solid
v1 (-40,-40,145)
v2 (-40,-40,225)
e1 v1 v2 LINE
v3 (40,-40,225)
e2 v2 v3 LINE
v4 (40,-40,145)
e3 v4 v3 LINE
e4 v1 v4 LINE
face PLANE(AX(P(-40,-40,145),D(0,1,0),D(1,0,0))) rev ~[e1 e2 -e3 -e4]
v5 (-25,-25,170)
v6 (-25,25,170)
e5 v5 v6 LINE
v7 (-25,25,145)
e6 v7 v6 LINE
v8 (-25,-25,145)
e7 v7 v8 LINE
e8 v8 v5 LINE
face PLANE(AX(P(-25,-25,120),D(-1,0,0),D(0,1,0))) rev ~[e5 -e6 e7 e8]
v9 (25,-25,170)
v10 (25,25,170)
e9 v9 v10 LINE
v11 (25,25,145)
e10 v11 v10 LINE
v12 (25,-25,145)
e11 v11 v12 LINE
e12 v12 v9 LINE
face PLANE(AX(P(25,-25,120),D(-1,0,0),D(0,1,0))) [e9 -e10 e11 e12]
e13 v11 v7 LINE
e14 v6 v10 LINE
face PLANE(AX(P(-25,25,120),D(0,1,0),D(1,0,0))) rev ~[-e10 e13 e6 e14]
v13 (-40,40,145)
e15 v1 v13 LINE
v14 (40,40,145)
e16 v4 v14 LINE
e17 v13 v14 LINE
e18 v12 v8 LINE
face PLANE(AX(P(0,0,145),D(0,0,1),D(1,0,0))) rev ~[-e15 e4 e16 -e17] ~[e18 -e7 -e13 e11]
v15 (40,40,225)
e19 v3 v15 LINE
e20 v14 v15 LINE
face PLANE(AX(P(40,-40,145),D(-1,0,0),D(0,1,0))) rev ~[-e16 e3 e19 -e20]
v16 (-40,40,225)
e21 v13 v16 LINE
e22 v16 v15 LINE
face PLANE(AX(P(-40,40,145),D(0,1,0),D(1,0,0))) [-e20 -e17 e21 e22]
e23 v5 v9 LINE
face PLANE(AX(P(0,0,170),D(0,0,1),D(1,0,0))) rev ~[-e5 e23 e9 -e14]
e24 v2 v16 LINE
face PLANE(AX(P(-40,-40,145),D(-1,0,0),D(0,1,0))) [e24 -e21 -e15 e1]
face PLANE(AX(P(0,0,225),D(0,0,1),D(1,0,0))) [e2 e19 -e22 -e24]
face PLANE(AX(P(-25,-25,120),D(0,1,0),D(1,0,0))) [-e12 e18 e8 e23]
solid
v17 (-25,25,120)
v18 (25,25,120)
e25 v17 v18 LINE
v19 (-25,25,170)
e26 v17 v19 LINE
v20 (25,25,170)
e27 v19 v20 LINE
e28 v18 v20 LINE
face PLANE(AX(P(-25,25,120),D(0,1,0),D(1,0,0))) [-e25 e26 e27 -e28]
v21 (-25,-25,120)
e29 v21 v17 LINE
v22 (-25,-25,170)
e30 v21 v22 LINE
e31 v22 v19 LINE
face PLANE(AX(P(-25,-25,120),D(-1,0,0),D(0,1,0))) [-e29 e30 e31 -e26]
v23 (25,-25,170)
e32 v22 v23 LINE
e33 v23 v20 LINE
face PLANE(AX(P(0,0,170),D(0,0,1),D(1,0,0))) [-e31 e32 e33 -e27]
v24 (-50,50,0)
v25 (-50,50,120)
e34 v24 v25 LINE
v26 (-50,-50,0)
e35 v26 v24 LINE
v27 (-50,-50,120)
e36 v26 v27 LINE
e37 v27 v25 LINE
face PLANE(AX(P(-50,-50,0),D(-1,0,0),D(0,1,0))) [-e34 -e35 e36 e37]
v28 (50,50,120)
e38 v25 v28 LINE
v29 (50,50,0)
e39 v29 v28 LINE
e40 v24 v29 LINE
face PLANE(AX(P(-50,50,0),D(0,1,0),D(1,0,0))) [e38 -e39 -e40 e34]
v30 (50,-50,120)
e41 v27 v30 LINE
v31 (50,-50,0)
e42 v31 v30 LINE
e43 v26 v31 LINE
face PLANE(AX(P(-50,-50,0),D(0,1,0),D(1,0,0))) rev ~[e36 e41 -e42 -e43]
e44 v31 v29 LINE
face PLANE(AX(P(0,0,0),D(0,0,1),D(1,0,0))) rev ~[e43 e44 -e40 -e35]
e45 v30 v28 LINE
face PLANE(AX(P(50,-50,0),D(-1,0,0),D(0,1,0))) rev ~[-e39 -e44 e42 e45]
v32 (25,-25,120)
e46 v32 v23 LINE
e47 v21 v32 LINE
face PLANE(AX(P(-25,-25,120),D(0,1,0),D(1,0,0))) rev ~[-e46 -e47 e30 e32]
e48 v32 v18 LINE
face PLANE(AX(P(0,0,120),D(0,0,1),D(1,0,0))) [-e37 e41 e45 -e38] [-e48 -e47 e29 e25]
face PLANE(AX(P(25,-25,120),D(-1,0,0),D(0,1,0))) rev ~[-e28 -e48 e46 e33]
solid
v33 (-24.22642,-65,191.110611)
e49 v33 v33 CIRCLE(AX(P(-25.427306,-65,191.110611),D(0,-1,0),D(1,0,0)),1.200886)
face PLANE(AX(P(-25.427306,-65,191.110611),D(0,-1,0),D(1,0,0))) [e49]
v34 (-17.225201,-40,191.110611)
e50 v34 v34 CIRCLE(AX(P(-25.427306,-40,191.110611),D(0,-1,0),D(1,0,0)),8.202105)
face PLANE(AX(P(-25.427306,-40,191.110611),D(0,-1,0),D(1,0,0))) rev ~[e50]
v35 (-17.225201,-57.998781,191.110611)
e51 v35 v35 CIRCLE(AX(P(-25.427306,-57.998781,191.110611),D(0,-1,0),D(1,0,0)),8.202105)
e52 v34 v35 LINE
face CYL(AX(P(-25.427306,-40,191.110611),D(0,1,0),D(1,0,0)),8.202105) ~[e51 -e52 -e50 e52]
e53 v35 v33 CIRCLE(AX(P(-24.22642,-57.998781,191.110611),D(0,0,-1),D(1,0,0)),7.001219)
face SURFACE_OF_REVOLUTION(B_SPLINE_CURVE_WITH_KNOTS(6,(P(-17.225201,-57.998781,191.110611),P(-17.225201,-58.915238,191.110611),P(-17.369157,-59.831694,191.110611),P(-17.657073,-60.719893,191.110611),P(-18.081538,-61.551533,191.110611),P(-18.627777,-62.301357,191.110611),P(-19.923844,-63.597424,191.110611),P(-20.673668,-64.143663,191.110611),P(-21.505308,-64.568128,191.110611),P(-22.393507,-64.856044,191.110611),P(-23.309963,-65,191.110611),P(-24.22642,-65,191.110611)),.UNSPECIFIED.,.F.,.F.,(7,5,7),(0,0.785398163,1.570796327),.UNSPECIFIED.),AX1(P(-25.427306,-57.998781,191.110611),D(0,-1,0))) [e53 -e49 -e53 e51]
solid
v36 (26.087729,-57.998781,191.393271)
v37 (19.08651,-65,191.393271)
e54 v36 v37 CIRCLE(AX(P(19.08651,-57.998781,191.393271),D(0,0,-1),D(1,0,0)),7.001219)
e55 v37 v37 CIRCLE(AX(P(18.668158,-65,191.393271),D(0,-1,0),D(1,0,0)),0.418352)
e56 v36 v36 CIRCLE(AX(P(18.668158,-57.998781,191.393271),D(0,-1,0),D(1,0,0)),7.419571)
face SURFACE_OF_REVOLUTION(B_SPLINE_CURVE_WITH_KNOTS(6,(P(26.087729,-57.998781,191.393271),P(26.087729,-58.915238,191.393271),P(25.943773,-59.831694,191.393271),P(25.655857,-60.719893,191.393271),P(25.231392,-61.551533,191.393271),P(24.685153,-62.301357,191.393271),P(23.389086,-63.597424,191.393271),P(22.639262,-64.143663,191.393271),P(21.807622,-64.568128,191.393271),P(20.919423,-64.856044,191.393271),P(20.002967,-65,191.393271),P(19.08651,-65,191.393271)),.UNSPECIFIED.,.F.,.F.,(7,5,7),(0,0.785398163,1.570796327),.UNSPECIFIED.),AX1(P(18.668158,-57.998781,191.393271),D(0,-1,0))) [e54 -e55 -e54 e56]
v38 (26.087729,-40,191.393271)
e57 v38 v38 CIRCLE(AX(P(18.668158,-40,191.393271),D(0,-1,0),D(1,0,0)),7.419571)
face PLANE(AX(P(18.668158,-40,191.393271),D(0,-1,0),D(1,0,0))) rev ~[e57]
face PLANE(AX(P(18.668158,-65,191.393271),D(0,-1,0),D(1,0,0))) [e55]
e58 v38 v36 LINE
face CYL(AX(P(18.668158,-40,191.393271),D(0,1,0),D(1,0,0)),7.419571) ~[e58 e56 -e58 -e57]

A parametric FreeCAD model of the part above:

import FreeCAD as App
import Part
import Sketcher

V = App.Vector
Q = App.Units.Quantity


def edges_at(feature, points):
    """Names of the edges that pass closest to the given points."""
    edges = feature.Shape.Edges
    near = lambda p: min(range(len(edges)), key=lambda i: edges[i].distToShape(Part.Vertex(*p))[0])
    return sorted({f"Edge{near(p) + 1}" for p in points})

doc = App.newDocument("Part")
params = doc.addObject("Spreadsheet::Sheet", "Params")
for row, (alias, value) in enumerate([
    ("sketch1_width", "100 mm"),
    ("pad1_length", "120 mm"),
    ("sketch2_width", "50 mm"),
    ("pad2_length", "50 mm"),
    ("sketch3_width", "80 mm"),
    ("pad3_length", "80 mm"),
    ("pad4_length", "25 mm"),
    ("fillet_radius", "7.001219 mm"),
], start=1):
    params.set(f"A{row}", alias)
    params.set(f"B{row}", "=" + value)
    params.setAlias(f"B{row}", alias)

body = doc.addObject("PartDesign::Body", "Body")

sketch1 = doc.addObject("Sketcher::SketchObject", "Sketch")
body.addObject(sketch1)
sketch1.AttachmentSupport = (doc.XY_Plane, [""])
sketch1.MapMode = "FlatFace"
sketch1.addGeometry([
    Part.LineSegment(V(-50, 50, 0), V(-50, -50, 0)),
    Part.LineSegment(V(-50, -50, 0), V(50, -50, 0)),
    Part.LineSegment(V(50, -50, 0), V(50, 50, 0)),
    Part.LineSegment(V(50, 50, 0), V(-50, 50, 0)),
], False)
sketch1.addConstraint([
    Sketcher.Constraint("Coincident", 0, 2, 1, 1),
    Sketcher.Constraint("Coincident", 1, 2, 2, 1),
    Sketcher.Constraint("Coincident", 2, 2, 3, 1),
    Sketcher.Constraint("Coincident", 3, 2, 0, 1),
    Sketcher.Constraint("Vertical", 0),
    Sketcher.Constraint("Horizontal", 1),
    Sketcher.Constraint("Vertical", 2),
    Sketcher.Constraint("Horizontal", 3),
    Sketcher.Constraint("Symmetric", 0, 2, 2, 2, -1, 1),
    Sketcher.Constraint("Equal", 3, 0),
    Sketcher.Constraint("DistanceX", 1, 1, 1, 2, Q("100 mm")),
])
sketch1.setExpression("Constraints[10]", "Params.sketch1_width")
pad1 = doc.addObject("PartDesign::Pad", "Pad")
body.addObject(pad1)
pad1.Profile = sketch1
pad1.setExpression("Length", "Params.pad1_length")

sketch2 = doc.addObject("Sketcher::SketchObject", "Sketch001")
body.addObject(sketch2)
sketch2.AttachmentSupport = (doc.XY_Plane, [""])
sketch2.MapMode = "FlatFace"
sketch2.AttachmentOffset = App.Placement(V(0, 0, 120), App.Rotation())
sketch2.addGeometry([
    Part.LineSegment(V(-25, 25, 0), V(-25, -25, 0)),
    Part.LineSegment(V(-25, -25, 0), V(25, -25, 0)),
    Part.LineSegment(V(25, -25, 0), V(25, 25, 0)),
    Part.LineSegment(V(25, 25, 0), V(-25, 25, 0)),
], False)
sketch2.addConstraint([
    Sketcher.Constraint("Coincident", 0, 2, 1, 1),
    Sketcher.Constraint("Coincident", 1, 2, 2, 1),
    Sketcher.Constraint("Coincident", 2, 2, 3, 1),
    Sketcher.Constraint("Coincident", 3, 2, 0, 1),
    Sketcher.Constraint("Vertical", 0),
    Sketcher.Constraint("Horizontal", 1),
    Sketcher.Constraint("Vertical", 2),
    Sketcher.Constraint("Horizontal", 3),
    Sketcher.Constraint("Symmetric", 0, 2, 2, 2, -1, 1),
    Sketcher.Constraint("Equal", 3, 0),
    Sketcher.Constraint("DistanceX", 1, 1, 1, 2, Q("50 mm")),
])
sketch2.setExpression("Constraints[10]", "Params.sketch2_width")
pad2 = doc.addObject("PartDesign::Pad", "Pad001")
body.addObject(pad2)
pad2.Profile = sketch2
pad2.setExpression("Length", "Params.pad2_length")
body2 = doc.addObject("PartDesign::Body", "Body001")

sketch3 = doc.addObject("Sketcher::SketchObject", "Sketch002")
body2.addObject(sketch3)
sketch3.AttachmentSupport = (doc.getObject("XY_Plane001"), [""])
sketch3.MapMode = "FlatFace"
sketch3.AttachmentOffset = App.Placement(V(0, 0, 145), App.Rotation())
sketch3.addGeometry([
    Part.LineSegment(V(-40, 40, 0), V(-40, -40, 0)),
    Part.LineSegment(V(-40, -40, 0), V(40, -40, 0)),
    Part.LineSegment(V(40, -40, 0), V(40, 40, 0)),
    Part.LineSegment(V(40, 40, 0), V(-40, 40, 0)),
], False)
sketch3.addConstraint([
    Sketcher.Constraint("Coincident", 0, 2, 1, 1),
    Sketcher.Constraint("Coincident", 1, 2, 2, 1),
    Sketcher.Constraint("Coincident", 2, 2, 3, 1),
    Sketcher.Constraint("Coincident", 3, 2, 0, 1),
    Sketcher.Constraint("Vertical", 0),
    Sketcher.Constraint("Horizontal", 1),
    Sketcher.Constraint("Vertical", 2),
    Sketcher.Constraint("Horizontal", 3),
    Sketcher.Constraint("Symmetric", 0, 2, 2, 2, -1, 1),
    Sketcher.Constraint("Equal", 3, 0),
    Sketcher.Constraint("DistanceX", 1, 1, 1, 2, Q("80 mm")),
])
sketch3.setExpression("Constraints[10]", "Params.sketch3_width")
pad3 = doc.addObject("PartDesign::Pad", "Pad002")
body2.addObject(pad3)
pad3.Profile = sketch3
pad3.setExpression("Length", "Params.pad3_length")
doc.recompute()

body3 = doc.addObject("PartDesign::Body", "Body002")
body3.BaseFeature = body
boolean = doc.addObject("PartDesign::Boolean", "Boolean")
body2.addObject(boolean)
boolean.Type = "Cut"
boolean.addObjects([body3])
doc.recompute()
body4 = doc.addObject("PartDesign::Body", "Body003")
body4.AllowCompound = True

sketch4 = doc.addObject("Sketcher::SketchObject", "Sketch003")
body4.addObject(sketch4)
sketch4.AttachmentSupport = (doc.getObject("XZ_Plane003"), [""])
sketch4.MapMode = "FlatFace"
sketch4.AttachmentOffset = App.Placement(V(0, 0, 40), App.Rotation())
sketch4.addGeometry([
    Part.Circle(V(-25.427306, 191.110611, 0), V(0, 0, 1), 8.202105),
    Part.Circle(V(18.668158, 191.393271, 0), V(0, 0, 1), 7.419571),
], False)
sketch4.addConstraint([
    Sketcher.Constraint("Diameter", 0, Q("16.40421 mm")),
    Sketcher.Constraint("Diameter", 1, Q("14.839142 mm")),
    Sketcher.Constraint("DistanceY", -1, 1, 0, 3, Q("191.110611 mm")),
    Sketcher.Constraint("DistanceY", -1, 1, 1, 3, Q("191.393271 mm")),
    Sketcher.Constraint("DistanceX", 0, 3, -1, 1, Q("25.427306 mm")),
    Sketcher.Constraint("DistanceX", -1, 1, 1, 3, Q("18.668158 mm")),
])
pad4 = doc.addObject("PartDesign::Pad", "Pad003")
body4.addObject(pad4)
pad4.Profile = sketch4
pad4.setExpression("Length", "Params.pad4_length")
doc.recompute()

fillet = doc.addObject("PartDesign::Fillet", "Fillet")
body4.addObject(fillet)
fillet.Base = (pad4, edges_at(pad4, [(-33.629, -65, 191.111), (11.249, -65, 191.393)]))
fillet.setExpression("Radius", "Params.fillet_radius")

doc.recompute()
